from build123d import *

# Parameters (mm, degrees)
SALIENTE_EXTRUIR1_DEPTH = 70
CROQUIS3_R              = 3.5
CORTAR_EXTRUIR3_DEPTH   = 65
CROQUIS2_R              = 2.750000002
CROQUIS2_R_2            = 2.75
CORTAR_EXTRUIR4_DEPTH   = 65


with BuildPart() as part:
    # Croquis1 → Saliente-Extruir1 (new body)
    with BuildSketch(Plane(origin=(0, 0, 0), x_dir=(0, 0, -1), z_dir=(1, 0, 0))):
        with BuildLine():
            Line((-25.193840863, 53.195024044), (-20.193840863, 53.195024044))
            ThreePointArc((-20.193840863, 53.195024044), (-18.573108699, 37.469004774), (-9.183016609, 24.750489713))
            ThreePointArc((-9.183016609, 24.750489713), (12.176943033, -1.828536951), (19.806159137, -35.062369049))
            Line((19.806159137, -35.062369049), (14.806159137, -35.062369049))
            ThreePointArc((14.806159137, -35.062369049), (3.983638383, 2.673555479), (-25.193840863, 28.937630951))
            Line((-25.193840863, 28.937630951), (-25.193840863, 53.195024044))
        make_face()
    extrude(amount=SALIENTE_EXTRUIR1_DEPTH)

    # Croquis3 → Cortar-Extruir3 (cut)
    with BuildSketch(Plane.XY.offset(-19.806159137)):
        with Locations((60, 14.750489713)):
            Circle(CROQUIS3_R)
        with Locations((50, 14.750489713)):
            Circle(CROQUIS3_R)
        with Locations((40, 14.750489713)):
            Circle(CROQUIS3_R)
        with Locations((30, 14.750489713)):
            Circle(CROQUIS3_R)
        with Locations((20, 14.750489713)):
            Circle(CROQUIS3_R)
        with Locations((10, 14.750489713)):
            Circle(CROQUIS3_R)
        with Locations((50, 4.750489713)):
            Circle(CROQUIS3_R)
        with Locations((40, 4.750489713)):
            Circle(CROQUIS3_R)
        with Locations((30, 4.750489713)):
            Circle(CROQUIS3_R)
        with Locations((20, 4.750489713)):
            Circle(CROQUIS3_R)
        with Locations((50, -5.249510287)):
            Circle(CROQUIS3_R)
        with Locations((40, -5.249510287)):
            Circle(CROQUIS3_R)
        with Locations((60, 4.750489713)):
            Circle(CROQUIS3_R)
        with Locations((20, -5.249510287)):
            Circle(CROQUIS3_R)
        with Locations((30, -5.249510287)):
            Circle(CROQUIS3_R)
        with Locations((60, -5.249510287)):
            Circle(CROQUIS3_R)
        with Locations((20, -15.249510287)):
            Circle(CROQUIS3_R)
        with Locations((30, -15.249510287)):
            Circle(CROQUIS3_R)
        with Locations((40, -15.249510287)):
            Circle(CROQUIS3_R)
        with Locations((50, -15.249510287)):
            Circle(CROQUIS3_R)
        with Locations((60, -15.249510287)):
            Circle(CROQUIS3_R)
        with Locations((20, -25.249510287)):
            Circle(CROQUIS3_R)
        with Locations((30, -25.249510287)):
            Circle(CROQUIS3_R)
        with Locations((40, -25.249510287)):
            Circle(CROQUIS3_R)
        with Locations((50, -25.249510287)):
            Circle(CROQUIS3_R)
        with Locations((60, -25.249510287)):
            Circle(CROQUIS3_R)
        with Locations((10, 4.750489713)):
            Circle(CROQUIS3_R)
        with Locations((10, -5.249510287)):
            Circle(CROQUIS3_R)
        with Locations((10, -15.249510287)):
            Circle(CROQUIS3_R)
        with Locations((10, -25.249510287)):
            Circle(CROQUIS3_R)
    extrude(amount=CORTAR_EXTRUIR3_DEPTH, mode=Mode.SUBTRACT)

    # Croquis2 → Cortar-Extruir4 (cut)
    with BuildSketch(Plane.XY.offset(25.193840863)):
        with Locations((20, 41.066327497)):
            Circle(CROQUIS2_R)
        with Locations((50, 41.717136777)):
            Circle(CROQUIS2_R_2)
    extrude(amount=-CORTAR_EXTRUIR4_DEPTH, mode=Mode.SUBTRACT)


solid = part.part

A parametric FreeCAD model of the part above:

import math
import FreeCAD as App
import Part
import Sketcher

doc = App.newDocument("Part")
body = doc.addObject("PartDesign::Body", "Body")

sketch1 = body.newObject("Sketcher::SketchObject", "Sketch")
sketch1.AttachmentSupport = (doc.getObject("YZ_Plane"), [""])
sketch1.MapMode = "FlatFace"
sketch1.addGeometry([
    Part.LineSegment(App.Vector(53, 20, 0), App.Vector(53, 25, 0)),
    Part.LineSegment(App.Vector(53, 25, 0), App.Vector(29, 25, 0)),
    Part.ArcOfCircle(Part.Circle(App.Vector(-35, 56, 0), App.Vector(0, 0, 1), 71), math.radians(-90), math.radians(-26)),
    Part.LineSegment(App.Vector(-35, -15, 0), App.Vector(-35, -20, 0)),
    Part.ArcOfCircle(Part.Circle(App.Vector(-35, 56, 0), App.Vector(0, 0, 1), 76), math.radians(-90), math.radians(-38)),
    Part.ArcOfCircle(Part.Circle(App.Vector(48, -9, 0), App.Vector(0, 0, 1), 30), math.radians(81), math.radians(142)),
], False)
sketch1.addConstraint([
    Sketcher.Constraint("Coincident", 0, 2, 1, 1),
    Sketcher.Constraint("Coincident", 1, 2, 2, 2),
    Sketcher.Constraint("Coincident", 2, 1, 3, 1),
    Sketcher.Constraint("Coincident", 3, 2, 4, 1),
    Sketcher.Constraint("Tangent", 4, 2, 5, 2),
    Sketcher.Constraint("Coincident", 5, 1, 0, 1),
    Sketcher.Constraint("Vertical", 0),
    Sketcher.Constraint("Horizontal", 1),
    Sketcher.Constraint("Vertical", 3),
    Sketcher.Constraint("Coincident", 4, 3, 2, 3),
    Sketcher.Constraint("Vertical", 4, 3, 2, 1),
    Sketcher.Constraint("Equal", 0, 3),
    Sketcher.Constraint("Radius", 5, 30.0),
    Sketcher.Constraint("Radius", 2, 71.2),
    Sketcher.Constraint("Radius", 4, 76.2),
    Sketcher.Constraint("DistanceX", 2, 3, 1, 2, 64.0),
    Sketcher.Constraint("DistanceX", 1, 2, 1, 1, 24.257393),
    Sketcher.Constraint("DistanceX", 2, 3, -1, 1, 35.062369),
    Sketcher.Constraint("DistanceY", -1, 1, 2, 3, 56.393841),
])
pad1 = body.newObject("PartDesign::Pad", "Pad")
pad1.Profile = sketch1
pad1.Length = 70

sketch2 = body.newObject("Sketcher::SketchObject", "Sketch001")
sketch2.AttachmentSupport = (doc.getObject("XY_Plane"), [""])
sketch2.MapMode = "FlatFace"
sketch2.AttachmentOffset = App.Placement(App.Vector(0, 0, -19.806159), App.Rotation())
sketch2.addGeometry([
    Part.Circle(App.Vector(60, 14.8, 0), App.Vector(0, 0, 1), 3.5),
    Part.Circle(App.Vector(50, 14.8, 0), App.Vector(0, 0, 1), 3.5),
    Part.Circle(App.Vector(40, 14.8, 0), App.Vector(0, 0, 1), 3.5),
    Part.Circle(App.Vector(30, 14.8, 0), App.Vector(0, 0, 1), 3.5),
    Part.Circle(App.Vector(20, 14.8, 0), App.Vector(0, 0, 1), 3.5),
    Part.Circle(App.Vector(10, 14.8, 0), App.Vector(0, 0, 1), 3.5),
    Part.Circle(App.Vector(50, 4.8, 0), App.Vector(0, 0, 1), 3.5),
    Part.Circle(App.Vector(40, 4.8, 0), App.Vector(0, 0, 1), 3.5),
    Part.Circle(App.Vector(30, 4.8, 0), App.Vector(0, 0, 1), 3.5),
    Part.Circle(App.Vector(20, 4.8, 0), App.Vector(0, 0, 1), 3.5),
    Part.Circle(App.Vector(50, -5.2, 0), App.Vector(0, 0, 1), 3.5),
    Part.Circle(App.Vector(40, -5.2, 0), App.Vector(0, 0, 1), 3.5),
    Part.Circle(App.Vector(60, 4.8, 0), App.Vector(0, 0, 1), 3.5),
    Part.Circle(App.Vector(20, -5.2, 0), App.Vector(0, 0, 1), 3.5),
    Part.Circle(App.Vector(30, -5.2, 0), App.Vector(0, 0, 1), 3.5),
    Part.Circle(App.Vector(60, -5.2, 0), App.Vector(0, 0, 1), 3.5),
    Part.Circle(App.Vector(20, -15.2, 0), App.Vector(0, 0, 1), 3.5),
    Part.Circle(App.Vector(30, -15.2, 0), App.Vector(0, 0, 1), 3.5),
    Part.Circle(App.Vector(40, -15.2, 0), App.Vector(0, 0, 1), 3.5),
    Part.Circle(App.Vector(50, -15.2, 0), App.Vector(0, 0, 1), 3.5),
    Part.Circle(App.Vector(60, -15.2, 0), App.Vector(0, 0, 1), 3.5),
    Part.Circle(App.Vector(20, -25.2, 0), App.Vector(0, 0, 1), 3.5),
    Part.Circle(App.Vector(30, -25.2, 0), App.Vector(0, 0, 1), 3.5),
    Part.Circle(App.Vector(40, -25.2, 0), App.Vector(0, 0, 1), 3.5),
    Part.Circle(App.Vector(50, -25.2, 0), App.Vector(0, 0, 1), 3.5),
    Part.Circle(App.Vector(60, -25.2, 0), App.Vector(0, 0, 1), 3.5),
    Part.Circle(App.Vector(10, 4.8, 0), App.Vector(0, 0, 1), 3.5),
    Part.Circle(App.Vector(10, -5.2, 0), App.Vector(0, 0, 1), 3.5),
    Part.Circle(App.Vector(10, -15.2, 0), App.Vector(0, 0, 1), 3.5),
    Part.Circle(App.Vector(10, -25.2, 0), App.Vector(0, 0, 1), 3.5),
], False)
sketch2.addConstraint([
    Sketcher.Constraint("Equal", 0, 1),
    Sketcher.Constraint("Equal", 1, 2),
    Sketcher.Constraint("Equal", 2, 3),
    Sketcher.Constraint("Equal", 3, 4),
    Sketcher.Constraint("Equal", 4, 5),
    Sketcher.Constraint("Equal", 5, 6),
    Sketcher.Constraint("Equal", 6, 7),
    Sketcher.Constraint("Equal", 7, 8),
    Sketcher.Constraint("Equal", 8, 9),
    Sketcher.Constraint("Equal", 9, 10),
    Sketcher.Constraint("Equal", 10, 11),
    Sketcher.Constraint("Equal", 11, 12),
    Sketcher.Constraint("Equal", 12, 13),
    Sketcher.Constraint("Equal", 13, 14),
    Sketcher.Constraint("Equal", 14, 15),
    Sketcher.Constraint("Equal", 15, 16),
    Sketcher.Constraint("Equal", 16, 17),
    Sketcher.Constraint("Equal", 17, 18),
    Sketcher.Constraint("Equal", 18, 19),
    Sketcher.Constraint("Equal", 19, 20),
    Sketcher.Constraint("Equal", 20, 21),
    Sketcher.Constraint("Equal", 21, 22),
    Sketcher.Constraint("Equal", 22, 23),
    Sketcher.Constraint("Equal", 23, 24),
    Sketcher.Constraint("Equal", 24, 25),
    Sketcher.Constraint("Equal", 25, 26),
    Sketcher.Constraint("Equal", 26, 27),
    Sketcher.Constraint("Equal", 27, 28),
    Sketcher.Constraint("Equal", 28, 29),
    Sketcher.Constraint("Horizontal", 0, 3, 1, 3),
    Sketcher.Constraint("Horizontal", 1, 3, 2, 3),
    Sketcher.Constraint("Horizontal", 2, 3, 3, 3),
    Sketcher.Constraint("Horizontal", 3, 3, 4, 3),
    Sketcher.Constraint("Horizontal", 4, 3, 5, 3),
    Sketcher.Constraint("Horizontal", 6, 3, 7, 3),
    Sketcher.Constraint("Horizontal", 7, 3, 8, 3),
    Sketcher.Constraint("Horizontal", 8, 3, 9, 3),
    Sketcher.Constraint("Horizontal", 10, 3, 11, 3),
    Sketcher.Constraint("Horizontal", 9, 3, 12, 3),
    Sketcher.Constraint("Horizontal", 11, 3, 13, 3),
    Sketcher.Constraint("Horizontal", 13, 3, 14, 3),
    Sketcher.Constraint("Horizontal", 14, 3, 15, 3),
    Sketcher.Constraint("Horizontal", 16, 3, 17, 3),
    Sketcher.Constraint("Horizontal", 17, 3, 18, 3),
    Sketcher.Constraint("Horizontal", 18, 3, 19, 3),
    Sketcher.Constraint("Horizontal", 19, 3, 20, 3),
    Sketcher.Constraint("Horizontal", 21, 3, 22, 3),
    Sketcher.Constraint("Horizontal", 22, 3, 23, 3),
    Sketcher.Constraint("Horizontal", 23, 3, 24, 3),
    Sketcher.Constraint("Horizontal", 24, 3, 25, 3),
    Sketcher.Constraint("Horizontal", 12, 3, 26, 3),
    Sketcher.Constraint("Horizontal", 15, 3, 27, 3),
    Sketcher.Constraint("Horizontal", 20, 3, 28, 3),
    Sketcher.Constraint("Horizontal", 25, 3, 29, 3),
    Sketcher.Constraint("Vertical", 1, 3, 6, 3),
    Sketcher.Constraint("Vertical", 2, 3, 7, 3),
    Sketcher.Constraint("Vertical", 3, 3, 8, 3),
    Sketcher.Constraint("Vertical", 4, 3, 9, 3),
    Sketcher.Constraint("Vertical", 6, 3, 10, 3),
    Sketcher.Constraint("Vertical", 7, 3, 11, 3),
    Sketcher.Constraint("Vertical", 0, 3, 12, 3),
    Sketcher.Constraint("Vertical", 9, 3, 13, 3),
    Sketcher.Constraint("Vertical", 8, 3, 14, 3),
    Sketcher.Constraint("Vertical", 12, 3, 15, 3),
    Sketcher.Constraint("Vertical", 13, 3, 16, 3),
    Sketcher.Constraint("Vertical", 14, 3, 17, 3),
    Sketcher.Constraint("Vertical", 11, 3, 18, 3),
    Sketcher.Constraint("Vertical", 10, 3, 19, 3),
    Sketcher.Constraint("Vertical", 15, 3, 20, 3),
    Sketcher.Constraint("Vertical", 16, 3, 21, 3),
    Sketcher.Constraint("Vertical", 17, 3, 22, 3),
    Sketcher.Constraint("Vertical", 18, 3, 23, 3),
    Sketcher.Constraint("Vertical", 19, 3, 24, 3),
    Sketcher.Constraint("Vertical", 20, 3, 25, 3),
    Sketcher.Constraint("Vertical", 5, 3, 26, 3),
    Sketcher.Constraint("Vertical", 26, 3, 27, 3),
    Sketcher.Constraint("Vertical", 27, 3, 28, 3),
    Sketcher.Constraint("Vertical", 28, 3, 29, 3),
    Sketcher.Constraint("Diameter", 0, 7.0),
    Sketcher.Constraint("DistanceX", -1, 1, 0, 3, 60.0),
    Sketcher.Constraint("DistanceX", -1, 1, 1, 3, 50.0),
    Sketcher.Constraint("DistanceX", -1, 1, 2, 3, 40.0),
    Sketcher.Constraint("DistanceX", -1, 1, 3, 3, 30.0),
    Sketcher.Constraint("DistanceX", -1, 1, 4, 3, 20.0),
    Sketcher.Constraint("DistanceX", -1, 1, 5, 3, 10.0),
    Sketcher.Constraint("DistanceY", 6, 3, 1, 3, 10.0),
    Sketcher.Constraint("DistanceY", 10, 3, 6, 3, 10.0),
    Sketcher.Constraint("DistanceY", 16, 3, 13, 3, 10.0),
    Sketcher.Constraint("DistanceY", 21, 3, 16, 3, 10.0),
    Sketcher.Constraint("DistanceY", -1, 1, 0, 3, 14.75049),
])
pocket1 = body.newObject("PartDesign::Pocket", "Pocket")
pocket1.Profile = sketch2
pocket1.Length = 65
pocket1.Reversed = True

sketch3 = body.newObject("Sketcher::SketchObject", "Sketch002")
sketch3.AttachmentSupport = (doc.getObject("XY_Plane"), [""])
sketch3.MapMode = "FlatFace"
sketch3.AttachmentOffset = App.Placement(App.Vector(0, 0, 25.193841), App.Rotation())
sketch3.addGeometry([
    Part.Circle(App.Vector(20, 41.1, 0), App.Vector(0, 0, 1), 2.8),
    Part.Circle(App.Vector(50, 41.7, 0), App.Vector(0, 0, 1), 2.8),
], False)
sketch3.addConstraint([
    Sketcher.Constraint("Equal", 0, 1),
    Sketcher.Constraint("Diameter", 0, 5.5),
    Sketcher.Constraint("DistanceX", -1, 1, 0, 3, 20.0),
    Sketcher.Constraint("DistanceX", -1, 1, 1, 3, 50.0),
    Sketcher.Constraint("DistanceY", 0, 3, 1, 3, 0.650809),
    Sketcher.Constraint("DistanceY", -1, 1, 0, 3, 41.066327),
])
pocket2 = body.newObject("PartDesign::Pocket", "Pocket001")
pocket2.Profile = sketch3
pocket2.Length = 65

doc.recompute()
